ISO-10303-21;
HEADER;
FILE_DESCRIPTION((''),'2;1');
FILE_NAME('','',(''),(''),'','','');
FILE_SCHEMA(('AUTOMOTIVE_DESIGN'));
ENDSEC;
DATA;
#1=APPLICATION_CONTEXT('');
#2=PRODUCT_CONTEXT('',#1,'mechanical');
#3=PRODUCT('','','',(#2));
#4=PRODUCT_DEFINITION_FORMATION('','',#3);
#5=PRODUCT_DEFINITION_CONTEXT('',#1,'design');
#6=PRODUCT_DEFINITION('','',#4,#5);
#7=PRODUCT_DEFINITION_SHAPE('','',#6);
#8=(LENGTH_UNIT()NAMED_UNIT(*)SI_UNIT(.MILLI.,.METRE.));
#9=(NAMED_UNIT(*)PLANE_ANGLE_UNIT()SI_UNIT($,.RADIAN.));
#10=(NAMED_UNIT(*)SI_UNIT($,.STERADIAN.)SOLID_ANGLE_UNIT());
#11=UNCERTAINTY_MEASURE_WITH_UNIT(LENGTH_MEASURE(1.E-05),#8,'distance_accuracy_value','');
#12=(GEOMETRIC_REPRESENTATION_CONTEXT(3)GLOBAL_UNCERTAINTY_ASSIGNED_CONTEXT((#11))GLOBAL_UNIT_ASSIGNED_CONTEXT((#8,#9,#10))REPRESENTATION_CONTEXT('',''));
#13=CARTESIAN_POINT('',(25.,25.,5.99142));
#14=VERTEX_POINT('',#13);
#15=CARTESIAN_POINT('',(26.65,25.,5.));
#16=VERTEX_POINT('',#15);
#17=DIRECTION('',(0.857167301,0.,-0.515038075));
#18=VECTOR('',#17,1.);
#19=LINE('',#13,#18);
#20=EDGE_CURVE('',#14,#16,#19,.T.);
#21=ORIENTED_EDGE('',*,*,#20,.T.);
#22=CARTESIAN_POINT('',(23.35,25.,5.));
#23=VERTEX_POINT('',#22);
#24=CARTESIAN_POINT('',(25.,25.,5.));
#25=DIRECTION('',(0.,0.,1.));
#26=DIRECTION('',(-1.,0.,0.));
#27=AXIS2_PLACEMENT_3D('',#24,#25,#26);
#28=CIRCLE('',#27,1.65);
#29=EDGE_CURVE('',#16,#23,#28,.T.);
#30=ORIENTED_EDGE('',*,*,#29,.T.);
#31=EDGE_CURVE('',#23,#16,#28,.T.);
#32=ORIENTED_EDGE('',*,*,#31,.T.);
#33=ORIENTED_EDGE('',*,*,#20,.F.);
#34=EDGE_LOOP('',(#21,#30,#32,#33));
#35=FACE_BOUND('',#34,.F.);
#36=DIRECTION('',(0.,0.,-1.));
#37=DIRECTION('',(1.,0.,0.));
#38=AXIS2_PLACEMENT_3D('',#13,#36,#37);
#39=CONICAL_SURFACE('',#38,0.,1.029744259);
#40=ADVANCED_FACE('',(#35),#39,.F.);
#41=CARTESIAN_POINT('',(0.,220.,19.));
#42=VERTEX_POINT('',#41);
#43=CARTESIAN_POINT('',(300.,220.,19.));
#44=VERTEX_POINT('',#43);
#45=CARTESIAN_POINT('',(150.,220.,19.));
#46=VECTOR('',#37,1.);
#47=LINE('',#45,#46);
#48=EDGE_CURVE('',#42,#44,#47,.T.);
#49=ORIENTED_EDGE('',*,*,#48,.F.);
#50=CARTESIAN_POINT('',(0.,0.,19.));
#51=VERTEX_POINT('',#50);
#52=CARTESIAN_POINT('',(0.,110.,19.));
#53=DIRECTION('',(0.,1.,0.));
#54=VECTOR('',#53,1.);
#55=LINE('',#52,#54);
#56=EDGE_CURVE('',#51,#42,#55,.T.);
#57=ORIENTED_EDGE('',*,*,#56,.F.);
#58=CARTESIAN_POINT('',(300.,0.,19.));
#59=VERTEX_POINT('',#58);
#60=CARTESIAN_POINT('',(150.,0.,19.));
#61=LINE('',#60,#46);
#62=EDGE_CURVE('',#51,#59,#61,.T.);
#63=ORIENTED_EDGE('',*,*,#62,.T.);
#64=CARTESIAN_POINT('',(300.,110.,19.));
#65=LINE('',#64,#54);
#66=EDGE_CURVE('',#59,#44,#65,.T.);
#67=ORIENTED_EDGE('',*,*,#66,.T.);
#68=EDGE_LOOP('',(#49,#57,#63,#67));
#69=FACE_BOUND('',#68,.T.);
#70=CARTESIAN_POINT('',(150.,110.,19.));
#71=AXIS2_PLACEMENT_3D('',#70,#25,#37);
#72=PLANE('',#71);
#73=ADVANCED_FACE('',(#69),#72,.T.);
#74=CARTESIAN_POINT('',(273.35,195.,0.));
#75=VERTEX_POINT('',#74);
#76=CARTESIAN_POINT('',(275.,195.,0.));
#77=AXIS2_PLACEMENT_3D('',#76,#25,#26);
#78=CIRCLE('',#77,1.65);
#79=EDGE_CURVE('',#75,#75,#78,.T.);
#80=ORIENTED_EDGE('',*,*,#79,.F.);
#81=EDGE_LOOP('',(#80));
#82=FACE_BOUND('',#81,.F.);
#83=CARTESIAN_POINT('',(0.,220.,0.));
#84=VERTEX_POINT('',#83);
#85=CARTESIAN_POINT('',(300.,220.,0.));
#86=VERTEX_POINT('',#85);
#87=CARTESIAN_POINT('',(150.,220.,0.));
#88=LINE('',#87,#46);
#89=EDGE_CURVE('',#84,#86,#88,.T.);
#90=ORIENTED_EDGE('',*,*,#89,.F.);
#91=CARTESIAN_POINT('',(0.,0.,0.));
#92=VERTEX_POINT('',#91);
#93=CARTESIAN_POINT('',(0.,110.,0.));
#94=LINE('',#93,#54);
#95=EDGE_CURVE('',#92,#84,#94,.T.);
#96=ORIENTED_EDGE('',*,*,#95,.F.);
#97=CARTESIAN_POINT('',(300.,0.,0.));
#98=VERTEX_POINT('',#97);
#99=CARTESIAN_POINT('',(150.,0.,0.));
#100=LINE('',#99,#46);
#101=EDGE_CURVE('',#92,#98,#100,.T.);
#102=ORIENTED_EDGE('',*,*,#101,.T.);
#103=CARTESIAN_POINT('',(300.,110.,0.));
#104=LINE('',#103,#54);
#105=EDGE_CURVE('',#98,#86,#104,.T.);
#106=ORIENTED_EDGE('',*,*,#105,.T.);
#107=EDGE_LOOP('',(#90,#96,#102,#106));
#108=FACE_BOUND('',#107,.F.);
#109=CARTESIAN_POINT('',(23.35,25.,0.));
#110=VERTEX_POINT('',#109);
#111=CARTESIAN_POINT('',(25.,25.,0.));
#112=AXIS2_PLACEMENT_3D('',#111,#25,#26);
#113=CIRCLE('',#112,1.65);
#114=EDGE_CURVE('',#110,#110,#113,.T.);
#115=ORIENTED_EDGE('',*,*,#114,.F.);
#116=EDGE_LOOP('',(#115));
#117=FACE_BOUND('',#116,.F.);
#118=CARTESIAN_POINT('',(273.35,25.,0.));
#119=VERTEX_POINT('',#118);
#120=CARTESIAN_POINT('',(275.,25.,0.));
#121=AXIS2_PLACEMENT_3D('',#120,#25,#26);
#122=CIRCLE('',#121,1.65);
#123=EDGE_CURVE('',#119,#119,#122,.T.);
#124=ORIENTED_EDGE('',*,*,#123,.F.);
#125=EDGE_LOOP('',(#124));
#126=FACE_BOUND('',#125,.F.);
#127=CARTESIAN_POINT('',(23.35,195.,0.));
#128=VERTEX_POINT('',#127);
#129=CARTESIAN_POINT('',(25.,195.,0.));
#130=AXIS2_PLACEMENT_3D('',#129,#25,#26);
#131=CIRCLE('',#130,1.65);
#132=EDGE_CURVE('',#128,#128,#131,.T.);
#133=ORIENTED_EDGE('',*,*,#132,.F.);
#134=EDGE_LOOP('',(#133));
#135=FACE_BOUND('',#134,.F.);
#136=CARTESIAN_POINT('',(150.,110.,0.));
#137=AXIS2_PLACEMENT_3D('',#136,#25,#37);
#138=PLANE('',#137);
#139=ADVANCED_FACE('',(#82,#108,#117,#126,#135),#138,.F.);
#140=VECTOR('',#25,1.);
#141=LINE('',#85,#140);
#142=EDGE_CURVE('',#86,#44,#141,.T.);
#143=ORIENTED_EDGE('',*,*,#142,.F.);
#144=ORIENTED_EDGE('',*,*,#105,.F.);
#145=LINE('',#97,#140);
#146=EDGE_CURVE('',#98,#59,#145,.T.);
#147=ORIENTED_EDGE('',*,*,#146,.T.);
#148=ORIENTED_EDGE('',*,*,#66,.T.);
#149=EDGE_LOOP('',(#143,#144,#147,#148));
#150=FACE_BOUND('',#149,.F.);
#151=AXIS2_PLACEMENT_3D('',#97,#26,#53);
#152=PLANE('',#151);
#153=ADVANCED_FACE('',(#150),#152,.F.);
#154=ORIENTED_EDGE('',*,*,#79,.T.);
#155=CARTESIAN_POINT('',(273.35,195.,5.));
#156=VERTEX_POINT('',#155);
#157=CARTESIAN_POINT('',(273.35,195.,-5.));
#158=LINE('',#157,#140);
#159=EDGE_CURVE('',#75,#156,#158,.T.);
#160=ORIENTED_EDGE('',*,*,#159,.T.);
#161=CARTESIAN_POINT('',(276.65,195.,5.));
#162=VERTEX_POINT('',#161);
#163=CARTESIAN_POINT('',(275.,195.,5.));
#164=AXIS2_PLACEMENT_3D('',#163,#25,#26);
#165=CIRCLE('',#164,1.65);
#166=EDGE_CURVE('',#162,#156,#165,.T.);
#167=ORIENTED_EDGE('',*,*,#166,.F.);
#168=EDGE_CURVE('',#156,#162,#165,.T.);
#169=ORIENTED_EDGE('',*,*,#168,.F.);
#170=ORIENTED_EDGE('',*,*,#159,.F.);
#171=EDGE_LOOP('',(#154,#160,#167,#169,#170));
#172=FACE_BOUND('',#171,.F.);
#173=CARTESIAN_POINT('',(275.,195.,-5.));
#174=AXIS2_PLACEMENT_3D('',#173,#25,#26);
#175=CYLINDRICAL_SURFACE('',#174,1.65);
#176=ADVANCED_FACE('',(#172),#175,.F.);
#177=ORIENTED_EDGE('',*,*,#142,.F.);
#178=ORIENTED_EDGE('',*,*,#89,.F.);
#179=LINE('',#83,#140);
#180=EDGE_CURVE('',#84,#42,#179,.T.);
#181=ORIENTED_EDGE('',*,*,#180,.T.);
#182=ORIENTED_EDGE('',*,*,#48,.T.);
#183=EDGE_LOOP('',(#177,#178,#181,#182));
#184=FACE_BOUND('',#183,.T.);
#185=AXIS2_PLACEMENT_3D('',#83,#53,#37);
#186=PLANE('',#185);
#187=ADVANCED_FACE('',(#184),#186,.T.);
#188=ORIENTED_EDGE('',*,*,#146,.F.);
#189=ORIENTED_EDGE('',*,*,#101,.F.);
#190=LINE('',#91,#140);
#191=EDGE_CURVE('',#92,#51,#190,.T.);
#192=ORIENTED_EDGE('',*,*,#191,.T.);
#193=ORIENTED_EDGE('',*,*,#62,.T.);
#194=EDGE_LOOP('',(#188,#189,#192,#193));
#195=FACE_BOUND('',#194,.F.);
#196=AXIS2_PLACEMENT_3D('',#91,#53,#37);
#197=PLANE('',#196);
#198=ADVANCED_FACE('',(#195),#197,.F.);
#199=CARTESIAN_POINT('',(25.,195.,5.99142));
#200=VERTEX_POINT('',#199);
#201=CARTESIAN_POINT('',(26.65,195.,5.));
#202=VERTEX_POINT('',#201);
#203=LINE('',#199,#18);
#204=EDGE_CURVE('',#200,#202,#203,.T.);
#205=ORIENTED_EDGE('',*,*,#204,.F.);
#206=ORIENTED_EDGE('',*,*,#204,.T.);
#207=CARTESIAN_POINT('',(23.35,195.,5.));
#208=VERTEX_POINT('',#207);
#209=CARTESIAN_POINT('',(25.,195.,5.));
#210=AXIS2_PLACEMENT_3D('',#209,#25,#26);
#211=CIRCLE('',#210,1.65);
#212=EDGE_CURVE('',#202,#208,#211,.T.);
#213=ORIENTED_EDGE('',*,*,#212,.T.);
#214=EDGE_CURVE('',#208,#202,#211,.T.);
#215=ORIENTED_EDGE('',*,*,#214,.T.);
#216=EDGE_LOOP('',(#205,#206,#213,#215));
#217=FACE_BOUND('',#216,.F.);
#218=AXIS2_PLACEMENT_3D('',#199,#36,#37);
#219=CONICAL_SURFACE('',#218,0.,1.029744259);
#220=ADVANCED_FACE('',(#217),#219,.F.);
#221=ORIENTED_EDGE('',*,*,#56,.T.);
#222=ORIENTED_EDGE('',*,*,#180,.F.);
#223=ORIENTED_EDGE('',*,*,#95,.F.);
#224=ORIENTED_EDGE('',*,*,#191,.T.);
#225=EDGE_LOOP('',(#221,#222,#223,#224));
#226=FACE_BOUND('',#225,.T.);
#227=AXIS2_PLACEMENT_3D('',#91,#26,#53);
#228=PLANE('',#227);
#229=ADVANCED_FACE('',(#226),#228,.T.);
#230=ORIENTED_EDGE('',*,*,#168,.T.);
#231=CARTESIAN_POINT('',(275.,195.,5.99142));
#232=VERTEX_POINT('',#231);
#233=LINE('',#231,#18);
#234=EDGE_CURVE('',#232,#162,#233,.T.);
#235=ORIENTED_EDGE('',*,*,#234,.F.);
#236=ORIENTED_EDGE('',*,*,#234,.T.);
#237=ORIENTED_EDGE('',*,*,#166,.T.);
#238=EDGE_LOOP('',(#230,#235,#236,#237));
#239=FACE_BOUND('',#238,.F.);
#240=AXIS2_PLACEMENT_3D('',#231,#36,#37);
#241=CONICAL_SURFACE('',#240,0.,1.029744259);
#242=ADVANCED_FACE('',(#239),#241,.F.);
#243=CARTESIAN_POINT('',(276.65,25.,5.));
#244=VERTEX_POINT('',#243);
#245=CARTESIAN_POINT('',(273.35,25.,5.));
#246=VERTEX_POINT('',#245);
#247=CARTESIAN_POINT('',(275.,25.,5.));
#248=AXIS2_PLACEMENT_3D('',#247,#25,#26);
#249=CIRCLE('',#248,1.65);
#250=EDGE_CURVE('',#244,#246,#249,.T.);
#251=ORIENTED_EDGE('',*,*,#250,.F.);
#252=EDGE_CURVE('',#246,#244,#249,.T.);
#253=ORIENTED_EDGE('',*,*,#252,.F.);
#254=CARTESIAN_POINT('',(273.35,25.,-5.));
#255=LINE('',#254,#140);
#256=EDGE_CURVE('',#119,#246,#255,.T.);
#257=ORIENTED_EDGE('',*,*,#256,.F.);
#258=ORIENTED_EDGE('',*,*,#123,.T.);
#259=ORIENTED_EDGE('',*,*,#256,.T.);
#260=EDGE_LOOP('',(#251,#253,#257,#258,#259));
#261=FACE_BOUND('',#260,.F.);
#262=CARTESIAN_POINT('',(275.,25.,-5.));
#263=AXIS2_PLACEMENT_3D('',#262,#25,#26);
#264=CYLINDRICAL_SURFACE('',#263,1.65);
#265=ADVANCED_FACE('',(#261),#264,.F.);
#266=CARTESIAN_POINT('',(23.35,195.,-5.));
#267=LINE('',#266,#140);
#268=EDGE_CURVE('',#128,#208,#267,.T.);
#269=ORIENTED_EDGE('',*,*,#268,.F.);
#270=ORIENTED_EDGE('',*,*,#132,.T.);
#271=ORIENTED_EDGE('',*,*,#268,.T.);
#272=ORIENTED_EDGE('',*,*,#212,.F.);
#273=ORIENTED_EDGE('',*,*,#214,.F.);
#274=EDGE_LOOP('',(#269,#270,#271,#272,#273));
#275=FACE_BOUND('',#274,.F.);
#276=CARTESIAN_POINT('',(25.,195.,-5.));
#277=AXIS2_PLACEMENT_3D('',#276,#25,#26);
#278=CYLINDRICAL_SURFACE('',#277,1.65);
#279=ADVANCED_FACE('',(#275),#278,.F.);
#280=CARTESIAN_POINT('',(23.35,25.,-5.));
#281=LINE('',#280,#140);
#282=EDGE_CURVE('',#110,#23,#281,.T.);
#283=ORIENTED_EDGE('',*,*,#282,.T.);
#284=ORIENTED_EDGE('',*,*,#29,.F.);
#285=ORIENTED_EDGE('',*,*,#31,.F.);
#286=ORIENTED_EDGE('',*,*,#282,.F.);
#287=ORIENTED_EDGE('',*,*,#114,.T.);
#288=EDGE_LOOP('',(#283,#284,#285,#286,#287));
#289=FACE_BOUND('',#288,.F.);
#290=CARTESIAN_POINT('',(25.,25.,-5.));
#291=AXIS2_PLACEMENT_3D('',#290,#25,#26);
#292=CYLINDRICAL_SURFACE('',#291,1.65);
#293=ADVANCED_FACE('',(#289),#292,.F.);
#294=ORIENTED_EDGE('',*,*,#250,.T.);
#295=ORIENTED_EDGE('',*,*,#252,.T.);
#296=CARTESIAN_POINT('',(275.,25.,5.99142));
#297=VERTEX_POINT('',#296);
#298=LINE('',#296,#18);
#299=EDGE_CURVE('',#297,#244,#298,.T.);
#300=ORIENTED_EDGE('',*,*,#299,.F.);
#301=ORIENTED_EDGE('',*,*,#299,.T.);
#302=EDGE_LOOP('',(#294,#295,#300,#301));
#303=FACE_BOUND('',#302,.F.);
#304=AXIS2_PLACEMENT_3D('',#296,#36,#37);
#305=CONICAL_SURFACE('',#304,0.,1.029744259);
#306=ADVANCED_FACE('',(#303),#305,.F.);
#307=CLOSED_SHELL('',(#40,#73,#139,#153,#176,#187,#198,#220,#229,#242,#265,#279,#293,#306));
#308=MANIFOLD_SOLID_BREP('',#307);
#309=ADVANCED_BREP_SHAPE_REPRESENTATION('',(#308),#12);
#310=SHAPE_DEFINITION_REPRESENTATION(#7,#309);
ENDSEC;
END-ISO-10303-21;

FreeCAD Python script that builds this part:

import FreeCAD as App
import Part
import Sketcher

V = App.Vector
Q = App.Units.Quantity

doc = App.newDocument("Part")
params = doc.addObject("Spreadsheet::Sheet", "Params")
for row, (alias, value) in enumerate([
    ("sketch1_width", "300 mm"),
    ("sketch1_height", "220 mm"),
    ("pad1_length", "19 mm"),
    ("sketch2_diameter", "3.3 mm"),
    ("hole_diameter", "3.3 mm"),
    ("hole_depth", "5 mm"),
], start=1):
    params.set(f"A{row}", alias)
    params.set(f"B{row}", "=" + value)
    params.setAlias(f"B{row}", alias)

body = doc.addObject("PartDesign::Body", "Body")

sketch1 = doc.addObject("Sketcher::SketchObject", "Sketch")
body.addObject(sketch1)
sketch1.AttachmentSupport = (doc.XY_Plane, [""])
sketch1.MapMode = "FlatFace"
sketch1.addGeometry(Part.LineSegment(V(0, 220, 0), V(0, 0, 0)), False)
sketch1.addGeometry(Part.LineSegment(V(0, 0, 0), V(300, 0, 0)), False)
sketch1.addGeometry(Part.LineSegment(V(300, 0, 0), V(300, 220, 0)), False)
sketch1.addGeometry(Part.LineSegment(V(300, 220, 0), V(0, 220, 0)), False)
sketch1.addConstraint(Sketcher.Constraint("Coincident", 0, 2, 1, 1))
sketch1.addConstraint(Sketcher.Constraint("Coincident", 1, 2, 2, 1))
sketch1.addConstraint(Sketcher.Constraint("Coincident", 2, 2, 3, 1))
sketch1.addConstraint(Sketcher.Constraint("Coincident", 3, 2, 0, 1))
sketch1.addConstraint(Sketcher.Constraint("Vertical", 0))
sketch1.addConstraint(Sketcher.Constraint("Horizontal", 1))
sketch1.addConstraint(Sketcher.Constraint("Vertical", 2))
sketch1.addConstraint(Sketcher.Constraint("Horizontal", 3))
sketch1.addConstraint(Sketcher.Constraint("Coincident", 0, 2, -1, 1))
sketch1.addConstraint(Sketcher.Constraint("DistanceX", 1, 1, 1, 2, Q("300 mm")))
sketch1.addConstraint(Sketcher.Constraint("DistanceY", 0, 2, 0, 1, Q("220 mm")))
sketch1.setExpression("Constraints[9]", "Params.sketch1_width")
sketch1.setExpression("Constraints[10]", "Params.sketch1_height")
pad1 = doc.addObject("PartDesign::Pad", "Pad")
body.addObject(pad1)
pad1.Profile = sketch1
pad1.setExpression("Length", "Params.pad1_length")

sketch2 = doc.addObject("Sketcher::SketchObject", "Sketch001")
body.addObject(sketch2)
sketch2.AttachmentSupport = (doc.XY_Plane, [""])
sketch2.MapMode = "FlatFace"
sketch2.addGeometry(Part.Circle(V(25, 25, 0), V(0, 0, 1), 1.6), False)
sketch2.addGeometry(Part.Circle(V(25, 195, 0), V(0, 0, 1), 1.6), False)
sketch2.addGeometry(Part.Circle(V(275, 195, 0), V(0, 0, 1), 1.6), False)
sketch2.addGeometry(Part.Circle(V(275, 25, 0), V(0, 0, 1), 1.6), False)
sketch2.addConstraint(Sketcher.Constraint("Equal", 0, 1))
sketch2.addConstraint(Sketcher.Constraint("Equal", 1, 2))
sketch2.addConstraint(Sketcher.Constraint("Equal", 2, 3))
sketch2.addConstraint(Sketcher.Constraint("Horizontal", 1, 3, 2, 3))
sketch2.addConstraint(Sketcher.Constraint("Horizontal", 0, 3, 3, 3))
sketch2.addConstraint(Sketcher.Constraint("Vertical", 0, 3, 1, 3))
sketch2.addConstraint(Sketcher.Constraint("Vertical", 2, 3, 3, 3))
sketch2.addConstraint(Sketcher.Constraint("Diameter", 0, Q("3.3 mm")))
sketch2.addConstraint(Sketcher.Constraint("DistanceX", -1, 1, 0, 3, Q("25 mm")))
sketch2.addConstraint(Sketcher.Constraint("DistanceY", -1, 1, 0, 3, Q("25 mm")))
sketch2.addConstraint(Sketcher.Constraint("DistanceY", -1, 1, 1, 3, Q("195 mm")))
sketch2.addConstraint(Sketcher.Constraint("DistanceX", -1, 1, 2, 3, Q("275 mm")))
sketch2.setExpression("Constraints[7]", "Params.sketch2_diameter")
doc.recompute()
hole = doc.addObject("PartDesign::Hole", "Hole")
body.addObject(hole)
hole.Profile = sketch2
hole.ThreadType = "None"
hole.setExpression("Diameter", "Params.hole_diameter")
hole.DepthType = "Dimension"
hole.setExpression("Depth", "Params.hole_depth")
hole.DrillPoint = "Angled"
hole.DrillPointAngle = 118
hole.Reversed = True

doc.recompute()
